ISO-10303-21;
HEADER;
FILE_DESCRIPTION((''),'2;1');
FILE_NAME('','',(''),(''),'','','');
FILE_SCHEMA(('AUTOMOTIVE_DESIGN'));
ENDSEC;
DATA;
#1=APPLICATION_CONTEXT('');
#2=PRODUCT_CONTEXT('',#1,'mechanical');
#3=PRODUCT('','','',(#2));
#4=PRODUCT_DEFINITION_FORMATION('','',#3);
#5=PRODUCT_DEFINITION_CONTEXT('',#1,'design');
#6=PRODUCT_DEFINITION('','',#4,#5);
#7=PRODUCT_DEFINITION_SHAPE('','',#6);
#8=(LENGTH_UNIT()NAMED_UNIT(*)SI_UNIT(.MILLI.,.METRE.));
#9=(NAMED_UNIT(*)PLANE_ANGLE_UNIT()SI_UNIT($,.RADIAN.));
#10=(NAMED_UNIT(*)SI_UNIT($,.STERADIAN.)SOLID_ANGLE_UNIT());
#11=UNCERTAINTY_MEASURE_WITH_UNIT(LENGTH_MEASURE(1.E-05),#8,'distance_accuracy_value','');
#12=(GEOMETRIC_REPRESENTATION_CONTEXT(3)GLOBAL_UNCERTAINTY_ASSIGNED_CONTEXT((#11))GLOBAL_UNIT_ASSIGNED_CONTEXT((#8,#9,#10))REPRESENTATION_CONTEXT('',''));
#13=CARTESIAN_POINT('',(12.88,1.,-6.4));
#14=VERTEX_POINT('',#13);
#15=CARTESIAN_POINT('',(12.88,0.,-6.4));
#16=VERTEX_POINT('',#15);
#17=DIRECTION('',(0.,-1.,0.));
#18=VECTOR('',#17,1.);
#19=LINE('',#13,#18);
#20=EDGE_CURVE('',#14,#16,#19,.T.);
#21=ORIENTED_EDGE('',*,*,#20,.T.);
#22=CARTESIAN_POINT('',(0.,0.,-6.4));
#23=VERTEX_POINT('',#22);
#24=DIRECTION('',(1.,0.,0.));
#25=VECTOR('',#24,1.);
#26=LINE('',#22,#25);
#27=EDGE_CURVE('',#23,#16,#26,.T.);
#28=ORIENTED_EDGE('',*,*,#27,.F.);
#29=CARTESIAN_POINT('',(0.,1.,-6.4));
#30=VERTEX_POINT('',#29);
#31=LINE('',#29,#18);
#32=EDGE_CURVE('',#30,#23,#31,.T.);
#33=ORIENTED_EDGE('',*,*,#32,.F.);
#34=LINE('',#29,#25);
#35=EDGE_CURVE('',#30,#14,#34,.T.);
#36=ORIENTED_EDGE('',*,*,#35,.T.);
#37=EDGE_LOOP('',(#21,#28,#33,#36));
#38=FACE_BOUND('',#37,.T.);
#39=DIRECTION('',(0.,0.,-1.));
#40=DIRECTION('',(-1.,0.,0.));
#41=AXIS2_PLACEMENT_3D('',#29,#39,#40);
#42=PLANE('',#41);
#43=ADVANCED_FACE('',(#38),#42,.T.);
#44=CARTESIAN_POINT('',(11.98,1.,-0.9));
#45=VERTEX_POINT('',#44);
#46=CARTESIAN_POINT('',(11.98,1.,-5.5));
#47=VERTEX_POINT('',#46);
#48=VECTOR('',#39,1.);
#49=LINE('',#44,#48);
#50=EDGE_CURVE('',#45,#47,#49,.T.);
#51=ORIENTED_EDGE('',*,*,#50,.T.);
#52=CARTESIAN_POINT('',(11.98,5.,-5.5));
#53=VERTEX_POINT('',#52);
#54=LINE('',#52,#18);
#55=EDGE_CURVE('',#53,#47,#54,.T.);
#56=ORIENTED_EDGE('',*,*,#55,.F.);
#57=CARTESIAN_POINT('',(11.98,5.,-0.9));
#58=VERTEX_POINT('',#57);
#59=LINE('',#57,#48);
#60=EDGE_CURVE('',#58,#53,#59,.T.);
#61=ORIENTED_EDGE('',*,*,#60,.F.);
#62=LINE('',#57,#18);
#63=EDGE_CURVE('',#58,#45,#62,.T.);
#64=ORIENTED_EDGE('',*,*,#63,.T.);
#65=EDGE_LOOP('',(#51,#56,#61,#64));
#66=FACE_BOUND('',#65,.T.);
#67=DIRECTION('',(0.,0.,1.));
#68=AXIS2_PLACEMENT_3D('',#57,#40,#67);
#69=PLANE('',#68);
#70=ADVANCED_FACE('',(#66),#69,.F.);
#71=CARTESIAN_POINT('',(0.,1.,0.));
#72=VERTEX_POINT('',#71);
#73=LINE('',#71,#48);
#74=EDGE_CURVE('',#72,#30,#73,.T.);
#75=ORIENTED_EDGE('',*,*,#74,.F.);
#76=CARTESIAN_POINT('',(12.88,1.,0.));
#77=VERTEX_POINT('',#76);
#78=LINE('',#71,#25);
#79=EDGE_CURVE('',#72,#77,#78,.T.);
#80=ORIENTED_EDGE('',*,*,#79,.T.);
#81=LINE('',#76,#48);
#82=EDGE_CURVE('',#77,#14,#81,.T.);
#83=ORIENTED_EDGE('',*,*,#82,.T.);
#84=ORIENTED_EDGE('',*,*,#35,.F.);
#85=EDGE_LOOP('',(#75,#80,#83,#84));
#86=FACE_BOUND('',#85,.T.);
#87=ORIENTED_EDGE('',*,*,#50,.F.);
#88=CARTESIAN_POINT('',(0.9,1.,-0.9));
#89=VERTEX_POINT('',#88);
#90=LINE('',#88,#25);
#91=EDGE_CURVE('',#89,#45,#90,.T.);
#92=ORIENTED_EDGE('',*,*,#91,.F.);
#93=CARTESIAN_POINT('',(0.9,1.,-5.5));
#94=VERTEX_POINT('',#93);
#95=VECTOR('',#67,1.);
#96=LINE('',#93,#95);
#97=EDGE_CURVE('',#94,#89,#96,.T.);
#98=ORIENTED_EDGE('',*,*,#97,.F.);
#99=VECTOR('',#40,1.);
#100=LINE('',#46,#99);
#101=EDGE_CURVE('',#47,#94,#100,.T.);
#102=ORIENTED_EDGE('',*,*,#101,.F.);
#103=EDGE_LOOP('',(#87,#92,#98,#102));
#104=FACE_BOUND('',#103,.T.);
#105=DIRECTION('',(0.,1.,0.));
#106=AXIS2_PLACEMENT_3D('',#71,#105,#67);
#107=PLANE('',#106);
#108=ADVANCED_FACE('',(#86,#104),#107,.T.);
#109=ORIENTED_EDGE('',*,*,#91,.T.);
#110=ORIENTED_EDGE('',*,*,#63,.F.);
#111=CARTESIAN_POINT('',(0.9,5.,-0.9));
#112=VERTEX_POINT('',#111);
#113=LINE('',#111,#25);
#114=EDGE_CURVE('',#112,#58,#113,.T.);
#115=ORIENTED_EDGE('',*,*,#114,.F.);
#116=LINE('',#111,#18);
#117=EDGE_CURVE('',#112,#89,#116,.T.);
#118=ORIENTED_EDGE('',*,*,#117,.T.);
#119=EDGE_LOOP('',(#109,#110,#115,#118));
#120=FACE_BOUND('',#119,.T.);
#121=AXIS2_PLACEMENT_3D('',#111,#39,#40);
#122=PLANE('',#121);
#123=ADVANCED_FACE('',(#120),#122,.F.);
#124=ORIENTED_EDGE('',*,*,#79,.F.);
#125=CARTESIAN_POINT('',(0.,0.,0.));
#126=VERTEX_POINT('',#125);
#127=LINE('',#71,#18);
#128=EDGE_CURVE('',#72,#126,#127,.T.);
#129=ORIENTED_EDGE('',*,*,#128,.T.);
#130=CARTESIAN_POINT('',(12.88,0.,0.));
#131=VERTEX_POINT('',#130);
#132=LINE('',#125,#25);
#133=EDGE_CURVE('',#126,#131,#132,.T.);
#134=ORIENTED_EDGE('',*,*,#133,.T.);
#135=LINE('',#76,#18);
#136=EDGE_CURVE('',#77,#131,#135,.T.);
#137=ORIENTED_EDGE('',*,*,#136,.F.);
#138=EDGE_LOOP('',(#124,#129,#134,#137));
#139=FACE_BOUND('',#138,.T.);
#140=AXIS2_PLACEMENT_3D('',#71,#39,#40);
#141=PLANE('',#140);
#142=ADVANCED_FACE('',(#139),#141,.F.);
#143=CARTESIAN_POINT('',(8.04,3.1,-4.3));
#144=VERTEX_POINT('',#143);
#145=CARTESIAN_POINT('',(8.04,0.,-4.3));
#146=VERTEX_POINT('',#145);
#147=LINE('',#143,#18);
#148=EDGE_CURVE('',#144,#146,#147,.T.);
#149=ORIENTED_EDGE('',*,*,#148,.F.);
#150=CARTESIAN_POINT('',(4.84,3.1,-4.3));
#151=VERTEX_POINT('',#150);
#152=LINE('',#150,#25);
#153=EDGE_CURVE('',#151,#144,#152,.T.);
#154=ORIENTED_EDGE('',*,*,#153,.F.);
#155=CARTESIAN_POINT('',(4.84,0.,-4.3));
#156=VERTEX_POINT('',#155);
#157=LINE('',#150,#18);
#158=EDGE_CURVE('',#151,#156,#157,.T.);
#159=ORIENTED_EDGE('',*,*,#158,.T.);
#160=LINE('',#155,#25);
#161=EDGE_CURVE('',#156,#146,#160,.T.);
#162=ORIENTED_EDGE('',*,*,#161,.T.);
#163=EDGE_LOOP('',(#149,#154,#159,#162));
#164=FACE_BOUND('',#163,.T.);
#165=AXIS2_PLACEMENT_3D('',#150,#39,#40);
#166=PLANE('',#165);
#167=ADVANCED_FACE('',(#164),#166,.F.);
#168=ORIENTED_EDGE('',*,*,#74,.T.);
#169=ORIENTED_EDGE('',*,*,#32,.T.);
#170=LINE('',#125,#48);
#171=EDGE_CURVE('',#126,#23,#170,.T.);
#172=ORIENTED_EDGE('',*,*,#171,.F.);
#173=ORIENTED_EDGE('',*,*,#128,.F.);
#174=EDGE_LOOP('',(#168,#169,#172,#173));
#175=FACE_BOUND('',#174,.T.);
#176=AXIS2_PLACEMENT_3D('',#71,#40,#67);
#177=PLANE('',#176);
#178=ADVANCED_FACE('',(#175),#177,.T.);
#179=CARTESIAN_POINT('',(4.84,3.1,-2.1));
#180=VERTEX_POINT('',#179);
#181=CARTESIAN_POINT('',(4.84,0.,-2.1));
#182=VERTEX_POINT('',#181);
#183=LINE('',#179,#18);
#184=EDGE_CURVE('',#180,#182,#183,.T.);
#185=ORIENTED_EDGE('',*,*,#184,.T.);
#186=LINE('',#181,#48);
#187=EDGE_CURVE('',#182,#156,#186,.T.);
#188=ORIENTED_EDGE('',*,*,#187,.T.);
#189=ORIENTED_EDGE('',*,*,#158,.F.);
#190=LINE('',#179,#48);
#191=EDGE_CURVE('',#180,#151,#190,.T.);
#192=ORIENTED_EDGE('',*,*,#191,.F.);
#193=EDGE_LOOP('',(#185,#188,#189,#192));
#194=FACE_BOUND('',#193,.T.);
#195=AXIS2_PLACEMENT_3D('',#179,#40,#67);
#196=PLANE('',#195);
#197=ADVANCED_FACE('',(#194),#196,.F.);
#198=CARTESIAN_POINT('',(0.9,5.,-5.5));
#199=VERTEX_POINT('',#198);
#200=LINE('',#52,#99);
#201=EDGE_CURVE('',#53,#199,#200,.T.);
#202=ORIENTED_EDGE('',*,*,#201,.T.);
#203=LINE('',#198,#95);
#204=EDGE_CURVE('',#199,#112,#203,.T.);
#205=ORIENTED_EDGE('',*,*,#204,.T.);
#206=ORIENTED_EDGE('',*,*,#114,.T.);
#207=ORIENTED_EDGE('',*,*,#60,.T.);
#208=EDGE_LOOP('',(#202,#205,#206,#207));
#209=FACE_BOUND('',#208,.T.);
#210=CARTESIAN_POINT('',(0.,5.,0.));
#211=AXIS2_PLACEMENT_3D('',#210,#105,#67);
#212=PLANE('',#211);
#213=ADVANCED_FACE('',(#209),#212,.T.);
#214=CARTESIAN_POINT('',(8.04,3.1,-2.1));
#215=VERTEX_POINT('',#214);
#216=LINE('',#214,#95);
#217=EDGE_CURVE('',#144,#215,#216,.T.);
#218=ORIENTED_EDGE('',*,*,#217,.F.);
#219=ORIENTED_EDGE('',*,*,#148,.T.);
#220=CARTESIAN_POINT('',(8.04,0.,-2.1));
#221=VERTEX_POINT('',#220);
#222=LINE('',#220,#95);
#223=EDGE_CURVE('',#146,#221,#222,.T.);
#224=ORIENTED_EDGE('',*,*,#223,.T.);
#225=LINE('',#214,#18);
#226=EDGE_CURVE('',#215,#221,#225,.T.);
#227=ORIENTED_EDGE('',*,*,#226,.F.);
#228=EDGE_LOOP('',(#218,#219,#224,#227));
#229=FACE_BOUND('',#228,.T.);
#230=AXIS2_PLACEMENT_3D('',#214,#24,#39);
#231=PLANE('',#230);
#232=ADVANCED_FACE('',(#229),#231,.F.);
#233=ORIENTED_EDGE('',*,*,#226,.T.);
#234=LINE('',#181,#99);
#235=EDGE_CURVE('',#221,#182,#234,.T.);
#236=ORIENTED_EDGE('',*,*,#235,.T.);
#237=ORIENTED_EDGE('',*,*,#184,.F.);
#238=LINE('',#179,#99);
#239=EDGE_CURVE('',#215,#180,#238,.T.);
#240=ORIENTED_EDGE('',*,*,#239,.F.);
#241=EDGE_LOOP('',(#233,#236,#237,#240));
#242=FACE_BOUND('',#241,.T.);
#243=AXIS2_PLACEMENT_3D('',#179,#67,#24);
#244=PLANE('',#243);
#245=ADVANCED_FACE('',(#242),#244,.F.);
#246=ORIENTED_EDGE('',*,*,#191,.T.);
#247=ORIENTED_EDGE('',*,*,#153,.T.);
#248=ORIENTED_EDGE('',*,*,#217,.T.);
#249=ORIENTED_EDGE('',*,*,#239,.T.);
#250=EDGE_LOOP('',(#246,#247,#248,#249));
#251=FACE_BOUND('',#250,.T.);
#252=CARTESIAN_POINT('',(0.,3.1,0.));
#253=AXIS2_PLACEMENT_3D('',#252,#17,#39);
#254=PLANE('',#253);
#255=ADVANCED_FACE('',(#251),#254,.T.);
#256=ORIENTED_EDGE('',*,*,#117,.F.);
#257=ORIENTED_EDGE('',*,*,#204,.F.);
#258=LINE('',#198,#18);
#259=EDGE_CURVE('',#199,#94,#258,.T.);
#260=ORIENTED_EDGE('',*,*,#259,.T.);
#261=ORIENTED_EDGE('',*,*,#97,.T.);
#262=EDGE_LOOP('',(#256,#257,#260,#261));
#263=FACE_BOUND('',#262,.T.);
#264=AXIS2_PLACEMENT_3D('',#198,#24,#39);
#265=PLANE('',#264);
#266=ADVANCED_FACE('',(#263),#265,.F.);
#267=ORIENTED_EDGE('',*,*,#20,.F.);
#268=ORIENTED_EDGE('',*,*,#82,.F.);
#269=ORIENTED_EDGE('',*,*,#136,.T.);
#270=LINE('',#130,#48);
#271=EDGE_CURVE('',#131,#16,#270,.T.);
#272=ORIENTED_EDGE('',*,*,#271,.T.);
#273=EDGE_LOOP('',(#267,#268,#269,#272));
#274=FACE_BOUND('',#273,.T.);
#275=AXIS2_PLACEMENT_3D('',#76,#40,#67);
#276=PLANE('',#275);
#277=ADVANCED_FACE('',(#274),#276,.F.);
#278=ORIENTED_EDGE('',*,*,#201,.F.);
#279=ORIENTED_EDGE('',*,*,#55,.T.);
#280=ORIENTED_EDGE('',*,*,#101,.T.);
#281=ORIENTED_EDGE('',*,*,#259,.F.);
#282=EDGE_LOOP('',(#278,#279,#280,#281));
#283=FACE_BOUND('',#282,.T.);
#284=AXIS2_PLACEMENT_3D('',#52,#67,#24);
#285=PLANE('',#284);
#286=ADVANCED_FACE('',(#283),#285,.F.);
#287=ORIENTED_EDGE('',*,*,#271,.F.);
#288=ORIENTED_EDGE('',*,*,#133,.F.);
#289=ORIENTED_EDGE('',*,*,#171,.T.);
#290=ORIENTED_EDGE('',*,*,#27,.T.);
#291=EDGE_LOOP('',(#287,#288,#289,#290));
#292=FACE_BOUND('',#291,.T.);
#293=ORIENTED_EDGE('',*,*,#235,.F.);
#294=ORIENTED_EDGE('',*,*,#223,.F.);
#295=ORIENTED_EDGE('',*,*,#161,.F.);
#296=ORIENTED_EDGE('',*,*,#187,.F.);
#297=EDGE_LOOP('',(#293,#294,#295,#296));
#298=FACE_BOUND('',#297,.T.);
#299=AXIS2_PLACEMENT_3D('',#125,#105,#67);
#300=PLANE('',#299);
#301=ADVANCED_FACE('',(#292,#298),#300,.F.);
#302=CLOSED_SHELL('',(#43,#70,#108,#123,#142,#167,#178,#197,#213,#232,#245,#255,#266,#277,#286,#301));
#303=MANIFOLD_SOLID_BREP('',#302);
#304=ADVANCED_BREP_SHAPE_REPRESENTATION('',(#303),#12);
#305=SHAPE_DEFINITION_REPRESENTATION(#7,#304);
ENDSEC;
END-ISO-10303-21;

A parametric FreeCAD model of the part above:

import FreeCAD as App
import Part
import Sketcher

V = App.Vector

doc = App.newDocument("Part")
body = doc.addObject("PartDesign::Body", "Body")

sketch1 = doc.addObject("Sketcher::SketchObject", "Sketch")
body.addObject(sketch1)
sketch1.AttachmentSupport = (doc.XZ_Plane, [""])
sketch1.MapMode = "FlatFace"
sketch1.addGeometry(Part.LineSegment(V(0, -6, 0), V(0, 0, 0)), False)
sketch1.addGeometry(Part.LineSegment(V(0, 0, 0), V(13, 0, 0)), False)
sketch1.addGeometry(Part.LineSegment(V(13, 0, 0), V(13, -6, 0)), False)
sketch1.addGeometry(Part.LineSegment(V(13, -6, 0), V(0, -6, 0)), False)
sketch1.addConstraint(Sketcher.Constraint("Coincident", 0, 2, 1, 1))
sketch1.addConstraint(Sketcher.Constraint("Coincident", 1, 2, 2, 1))
sketch1.addConstraint(Sketcher.Constraint("Coincident", 2, 2, 3, 1))
sketch1.addConstraint(Sketcher.Constraint("Coincident", 3, 2, 0, 1))
sketch1.addConstraint(Sketcher.Constraint("Vertical", 0))
sketch1.addConstraint(Sketcher.Constraint("Horizontal", 1))
sketch1.addConstraint(Sketcher.Constraint("Vertical", 2))
sketch1.addConstraint(Sketcher.Constraint("Horizontal", 3))
sketch1.addConstraint(Sketcher.Constraint("Coincident", 0, 2, -1, 1))
sketch1.addConstraint(Sketcher.Constraint("DistanceY", 0, 1, 0, 2, 6.4))
sketch1.addConstraint(Sketcher.Constraint("DistanceX", 1, 1, 1, 2, 12.88))
pad1 = doc.addObject("PartDesign::Pad", "Pad")
body.addObject(pad1)
pad1.Profile = sketch1
pad1.Length = 1
pad1.Reversed = True

sketch2 = doc.addObject("Sketcher::SketchObject", "Sketch001")
body.addObject(sketch2)
sketch2.AttachmentSupport = (doc.XZ_Plane, [""])
sketch2.MapMode = "FlatFace"
sketch2.AttachmentOffset = App.Placement(V(0, 0, -1), App.Rotation())
sketch2.addGeometry(Part.LineSegment(V(0.9, -5.5, 0), V(0.9, -0.9, 0)), False)
sketch2.addGeometry(Part.LineSegment(V(0.9, -0.9, 0), V(12, -0.9, 0)), False)
sketch2.addGeometry(Part.LineSegment(V(12, -0.9, 0), V(12, -5.5, 0)), False)
sketch2.addGeometry(Part.LineSegment(V(12, -5.5, 0), V(0.9, -5.5, 0)), False)
sketch2.addConstraint(Sketcher.Constraint("Coincident", 0, 2, 1, 1))
sketch2.addConstraint(Sketcher.Constraint("Coincident", 1, 2, 2, 1))
sketch2.addConstraint(Sketcher.Constraint("Coincident", 2, 2, 3, 1))
sketch2.addConstraint(Sketcher.Constraint("Coincident", 3, 2, 0, 1))
sketch2.addConstraint(Sketcher.Constraint("Vertical", 0))
sketch2.addConstraint(Sketcher.Constraint("Horizontal", 1))
sketch2.addConstraint(Sketcher.Constraint("Vertical", 2))
sketch2.addConstraint(Sketcher.Constraint("Horizontal", 3))
sketch2.addConstraint(Sketcher.Constraint("DistanceY", 0, 1, 0, 2, 4.6))
sketch2.addConstraint(Sketcher.Constraint("DistanceX", 1, 1, 1, 2, 11.08))
sketch2.addConstraint(Sketcher.Constraint("DistanceX", -1, 1, 0, 2, 0.9))
sketch2.addConstraint(Sketcher.Constraint("DistanceY", 0, 2, -1, 1, 0.9))
pad2 = doc.addObject("PartDesign::Pad", "Pad001")
body.addObject(pad2)
pad2.Profile = sketch2
pad2.Length = 4
pad2.Reversed = True

sketch3 = doc.addObject("Sketcher::SketchObject", "Sketch002")
body.addObject(sketch3)
sketch3.AttachmentSupport = (doc.XZ_Plane, [""])
sketch3.MapMode = "FlatFace"
sketch3.addGeometry(Part.LineSegment(V(4.8, -2.1, 0), V(4.8, -4.3, 0)), False)
sketch3.addGeometry(Part.LineSegment(V(4.8, -4.3, 0), V(8, -4.3, 0)), False)
sketch3.addGeometry(Part.LineSegment(V(8, -4.3, 0), V(8, -2.1, 0)), False)
sketch3.addGeometry(Part.LineSegment(V(8, -2.1, 0), V(4.8, -2.1, 0)), False)
sketch3.addConstraint(Sketcher.Constraint("Coincident", 0, 2, 1, 1))
sketch3.addConstraint(Sketcher.Constraint("Coincident", 1, 2, 2, 1))
sketch3.addConstraint(Sketcher.Constraint("Coincident", 2, 2, 3, 1))
sketch3.addConstraint(Sketcher.Constraint("Coincident", 3, 2, 0, 1))
sketch3.addConstraint(Sketcher.Constraint("Vertical", 0))
sketch3.addConstraint(Sketcher.Constraint("Horizontal", 1))
sketch3.addConstraint(Sketcher.Constraint("Vertical", 2))
sketch3.addConstraint(Sketcher.Constraint("Horizontal", 3))
sketch3.addConstraint(Sketcher.Constraint("DistanceX", 1, 1, 1, 2, 3.2))
sketch3.addConstraint(Sketcher.Constraint("DistanceY", 0, 2, 0, 1, 2.2))
sketch3.addConstraint(Sketcher.Constraint("DistanceY", 0, 2, -1, 1, 4.3))
sketch3.addConstraint(Sketcher.Constraint("DistanceX", -1, 1, 0, 2, 4.84))
pocket1 = doc.addObject("PartDesign::Pocket", "Pocket")
body.addObject(pocket1)
pocket1.Profile = sketch3
pocket1.Length = 3.1

doc.recompute()
